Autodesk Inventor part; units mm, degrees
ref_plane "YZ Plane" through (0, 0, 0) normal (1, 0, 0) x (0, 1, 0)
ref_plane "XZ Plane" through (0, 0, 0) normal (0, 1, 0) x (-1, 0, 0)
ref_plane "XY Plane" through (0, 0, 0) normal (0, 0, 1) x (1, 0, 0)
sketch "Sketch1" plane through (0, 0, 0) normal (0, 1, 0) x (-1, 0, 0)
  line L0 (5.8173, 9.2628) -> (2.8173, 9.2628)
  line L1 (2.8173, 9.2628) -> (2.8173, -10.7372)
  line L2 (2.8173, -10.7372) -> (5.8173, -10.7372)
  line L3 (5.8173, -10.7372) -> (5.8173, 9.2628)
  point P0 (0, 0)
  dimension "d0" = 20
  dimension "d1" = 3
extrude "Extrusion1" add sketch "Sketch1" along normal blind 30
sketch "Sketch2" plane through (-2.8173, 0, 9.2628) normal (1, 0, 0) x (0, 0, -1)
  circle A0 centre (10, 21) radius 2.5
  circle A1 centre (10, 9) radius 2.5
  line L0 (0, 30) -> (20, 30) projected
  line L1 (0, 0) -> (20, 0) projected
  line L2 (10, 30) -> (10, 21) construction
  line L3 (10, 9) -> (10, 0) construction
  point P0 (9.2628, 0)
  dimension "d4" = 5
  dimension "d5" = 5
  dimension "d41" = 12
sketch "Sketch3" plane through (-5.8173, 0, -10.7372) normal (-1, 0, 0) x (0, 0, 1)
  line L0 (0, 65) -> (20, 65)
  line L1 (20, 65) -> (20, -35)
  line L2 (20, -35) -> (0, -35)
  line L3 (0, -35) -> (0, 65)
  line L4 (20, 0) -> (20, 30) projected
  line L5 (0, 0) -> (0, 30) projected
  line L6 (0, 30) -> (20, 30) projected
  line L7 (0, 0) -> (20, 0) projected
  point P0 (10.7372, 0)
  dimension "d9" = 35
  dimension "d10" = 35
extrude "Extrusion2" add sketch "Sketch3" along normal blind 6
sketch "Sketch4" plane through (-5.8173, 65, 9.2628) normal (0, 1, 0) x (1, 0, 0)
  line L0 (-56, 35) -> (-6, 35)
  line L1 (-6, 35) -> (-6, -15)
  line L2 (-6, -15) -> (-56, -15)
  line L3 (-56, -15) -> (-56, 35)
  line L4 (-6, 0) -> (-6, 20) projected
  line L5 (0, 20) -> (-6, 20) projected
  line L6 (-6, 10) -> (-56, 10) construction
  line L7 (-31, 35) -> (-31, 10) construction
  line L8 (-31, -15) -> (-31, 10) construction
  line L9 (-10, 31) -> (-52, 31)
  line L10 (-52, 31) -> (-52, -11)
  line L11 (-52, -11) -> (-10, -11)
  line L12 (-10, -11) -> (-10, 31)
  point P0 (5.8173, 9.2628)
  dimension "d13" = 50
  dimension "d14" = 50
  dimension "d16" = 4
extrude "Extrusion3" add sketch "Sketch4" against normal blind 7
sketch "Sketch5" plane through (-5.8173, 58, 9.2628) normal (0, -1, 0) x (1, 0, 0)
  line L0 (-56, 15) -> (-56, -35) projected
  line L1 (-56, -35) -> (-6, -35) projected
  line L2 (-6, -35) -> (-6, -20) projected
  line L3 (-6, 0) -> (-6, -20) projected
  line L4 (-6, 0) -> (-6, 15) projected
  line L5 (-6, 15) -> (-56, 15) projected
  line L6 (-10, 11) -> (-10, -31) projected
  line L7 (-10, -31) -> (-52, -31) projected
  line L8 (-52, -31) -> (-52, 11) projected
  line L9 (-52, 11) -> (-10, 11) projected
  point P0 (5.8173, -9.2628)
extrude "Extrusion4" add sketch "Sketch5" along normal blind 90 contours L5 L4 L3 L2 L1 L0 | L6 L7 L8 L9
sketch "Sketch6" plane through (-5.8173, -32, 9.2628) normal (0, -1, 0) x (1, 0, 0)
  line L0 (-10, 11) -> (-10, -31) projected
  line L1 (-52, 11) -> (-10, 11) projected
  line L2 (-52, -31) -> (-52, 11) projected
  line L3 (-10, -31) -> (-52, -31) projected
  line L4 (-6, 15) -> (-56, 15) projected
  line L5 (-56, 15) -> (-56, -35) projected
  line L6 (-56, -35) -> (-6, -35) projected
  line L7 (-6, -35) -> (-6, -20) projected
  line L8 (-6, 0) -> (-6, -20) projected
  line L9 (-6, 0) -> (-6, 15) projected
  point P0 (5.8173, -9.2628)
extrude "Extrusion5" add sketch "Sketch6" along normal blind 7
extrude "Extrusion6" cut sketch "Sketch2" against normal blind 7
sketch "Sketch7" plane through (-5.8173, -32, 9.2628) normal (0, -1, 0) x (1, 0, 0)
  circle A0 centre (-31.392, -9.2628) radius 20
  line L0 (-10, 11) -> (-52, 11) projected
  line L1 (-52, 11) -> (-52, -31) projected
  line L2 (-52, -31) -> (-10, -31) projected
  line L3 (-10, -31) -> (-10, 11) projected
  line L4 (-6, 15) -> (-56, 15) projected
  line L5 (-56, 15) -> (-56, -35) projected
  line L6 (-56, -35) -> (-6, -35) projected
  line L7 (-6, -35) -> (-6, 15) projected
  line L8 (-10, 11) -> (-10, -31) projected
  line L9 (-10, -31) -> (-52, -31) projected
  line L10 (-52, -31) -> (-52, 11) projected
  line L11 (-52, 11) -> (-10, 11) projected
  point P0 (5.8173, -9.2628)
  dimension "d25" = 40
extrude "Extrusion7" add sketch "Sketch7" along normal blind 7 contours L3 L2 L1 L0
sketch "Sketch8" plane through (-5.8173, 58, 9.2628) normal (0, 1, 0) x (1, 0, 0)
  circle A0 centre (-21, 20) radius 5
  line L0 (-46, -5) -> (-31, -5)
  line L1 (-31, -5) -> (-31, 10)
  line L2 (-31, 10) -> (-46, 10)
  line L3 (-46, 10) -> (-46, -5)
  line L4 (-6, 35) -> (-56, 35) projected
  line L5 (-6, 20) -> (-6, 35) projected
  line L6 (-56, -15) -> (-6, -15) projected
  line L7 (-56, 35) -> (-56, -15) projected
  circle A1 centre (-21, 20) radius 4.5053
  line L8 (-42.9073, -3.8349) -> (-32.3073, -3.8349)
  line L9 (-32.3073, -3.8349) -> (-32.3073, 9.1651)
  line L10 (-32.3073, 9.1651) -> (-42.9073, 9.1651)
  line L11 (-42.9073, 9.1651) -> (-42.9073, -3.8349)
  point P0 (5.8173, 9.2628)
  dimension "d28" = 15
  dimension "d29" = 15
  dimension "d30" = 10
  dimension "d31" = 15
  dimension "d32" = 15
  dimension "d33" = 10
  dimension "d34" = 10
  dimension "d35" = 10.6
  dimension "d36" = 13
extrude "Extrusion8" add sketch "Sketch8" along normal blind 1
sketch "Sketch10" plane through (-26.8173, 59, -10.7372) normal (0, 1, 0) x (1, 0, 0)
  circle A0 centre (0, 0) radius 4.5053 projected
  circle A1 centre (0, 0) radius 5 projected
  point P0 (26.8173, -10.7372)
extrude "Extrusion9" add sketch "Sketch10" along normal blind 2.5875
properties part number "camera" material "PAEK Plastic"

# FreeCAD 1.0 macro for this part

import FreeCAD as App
import Part
import Sketcher
from FreeCAD import Vector

doc = App.newDocument("Part")
body = doc.addObject("PartDesign::Body", "Body")

# Sketch on XZ plane
sketch1 = body.newObject("Sketcher::SketchObject", "Sketch")
sketch1.AttachmentSupport = (doc.getObject("XZ_Plane"), [""])
sketch1.MapMode = "FlatFace"
sketch1.addGeometry([
    Part.LineSegment(Vector(-5.8, -10.7, 0), Vector(-5.8, 9.3, 0)),
    Part.LineSegment(Vector(-5.8, 9.3, 0), Vector(-2.8, 9.3, 0)),
    Part.LineSegment(Vector(-2.8, 9.3, 0), Vector(-2.8, -10.7, 0)),
    Part.LineSegment(Vector(-2.8, -10.7, 0), Vector(-5.8, -10.7, 0)),
], False)
sketch1.addConstraint([
    Sketcher.Constraint("Coincident", 0, 2, 1, 1),
    Sketcher.Constraint("Coincident", 1, 2, 2, 1),
    Sketcher.Constraint("Coincident", 2, 2, 3, 1),
    Sketcher.Constraint("Coincident", 3, 2, 0, 1),
    Sketcher.Constraint("Vertical", 0),
    Sketcher.Constraint("Horizontal", 1),
    Sketcher.Constraint("Vertical", 2),
    Sketcher.Constraint("Horizontal", 3),
    Sketcher.Constraint("DistanceX", 1, 1, 1, 2, 3.0),
    Sketcher.Constraint("DistanceY", 0, 1, 0, 2, 20.0),
    Sketcher.Constraint("DistanceX", 0, 2, -1, 1, 5.8173),
    Sketcher.Constraint("DistanceY", -1, 1, 0, 2, 9.2628),
])
pad1 = body.newObject("PartDesign::Pad", "Pad")
pad1.Profile = sketch1
pad1.Length = 30
pad1.Reversed = True

# Sketch on YZ plane
sketch2 = body.newObject("Sketcher::SketchObject", "Sketch001")
sketch2.AttachmentSupport = (doc.getObject("YZ_Plane"), [""])
sketch2.MapMode = "FlatFace"
sketch2.AttachmentOffset = App.Placement(Vector(0, 0, -5.8173), App.Rotation())
sketch2.addGeometry([
    Part.LineSegment(Vector(65, 9, 0), Vector(65, -11, 0)),
    Part.LineSegment(Vector(65, -11, 0), Vector(-35, -11, 0)),
    Part.LineSegment(Vector(-35, -11, 0), Vector(-35, 9, 0)),
    Part.LineSegment(Vector(-35, 9, 0), Vector(65, 9, 0)),
], False)
sketch2.addConstraint([
    Sketcher.Constraint("Coincident", 0, 2, 1, 1),
    Sketcher.Constraint("Coincident", 1, 2, 2, 1),
    Sketcher.Constraint("Coincident", 2, 2, 3, 1),
    Sketcher.Constraint("Coincident", 3, 2, 0, 1),
    Sketcher.Constraint("Vertical", 0),
    Sketcher.Constraint("Horizontal", 1),
    Sketcher.Constraint("Vertical", 2),
    Sketcher.Constraint("Horizontal", 3),
    Sketcher.Constraint("DistanceX", 1, 2, -1, 1, 35.0),
    Sketcher.Constraint("DistanceX", 1, 2, 1, 1, 100.0),
    Sketcher.Constraint("DistanceY", 0, 2, 0, 1, 20.0),
    Sketcher.Constraint("DistanceY", 0, 2, -1, 1, 10.7372),
])
pad2 = body.newObject("PartDesign::Pad", "Pad001")
pad2.Profile = sketch2
pad2.Length = 6
pad2.Reversed = True

# Sketch on XZ plane
sketch3 = body.newObject("Sketcher::SketchObject", "Sketch002")
sketch3.AttachmentSupport = (doc.getObject("XZ_Plane"), [""])
sketch3.MapMode = "FlatFace"
sketch3.AttachmentOffset = App.Placement(Vector(0, 0, -65), App.Rotation())
sketch3.addGeometry([
    Part.LineSegment(Vector(-12, -26, 0), Vector(-62, -26, 0)),  # 0
    Part.LineSegment(Vector(-62, -26, 0), Vector(-62, 24, 0)),  # 1
    Part.LineSegment(Vector(-62, 24, 0), Vector(-12, 24, 0)),  # 2
    Part.LineSegment(Vector(-12, 24, 0), Vector(-12, -26, 0)),  # 3
    Part.LineSegment(Vector(-58, -22, 0), Vector(-16, -22, 0)),  # 4
    Part.LineSegment(Vector(-16, -22, 0), Vector(-16, 20, 0)),  # 5
    Part.LineSegment(Vector(-16, 20, 0), Vector(-58, 20, 0)),  # 6
    Part.LineSegment(Vector(-58, 20, 0), Vector(-58, -22, 0)),  # 7
], False)
sketch3.addConstraint([
    Sketcher.Constraint("Coincident", 0, 2, 1, 1),
    Sketcher.Constraint("Coincident", 1, 2, 2, 1),
    Sketcher.Constraint("Coincident", 2, 2, 3, 1),
    Sketcher.Constraint("Coincident", 3, 2, 0, 1),
    Sketcher.Constraint("Coincident", 4, 2, 5, 1),
    Sketcher.Constraint("Coincident", 5, 2, 6, 1),
    Sketcher.Constraint("Coincident", 6, 2, 7, 1),
    Sketcher.Constraint("Coincident", 7, 2, 4, 1),
    Sketcher.Constraint("Horizontal", 0),
    Sketcher.Constraint("Vertical", 1),
    Sketcher.Constraint("Horizontal", 2),
    Sketcher.Constraint("Vertical", 3),
    Sketcher.Constraint("Horizontal", 4),
    Sketcher.Constraint("Vertical", 5),
    Sketcher.Constraint("Horizontal", 6),
    Sketcher.Constraint("Vertical", 7),
    Sketcher.Constraint("Equal", 2, 1),
    Sketcher.Constraint("Equal", 6, 5),
    Sketcher.Constraint("DistanceX", 0, 2, 0, 1, 50.0),
    Sketcher.Constraint("DistanceX", 4, 2, 3, 2, 4.0),
    Sketcher.Constraint("DistanceY", 3, 2, 4, 2, 4.0),
    Sketcher.Constraint("DistanceY", 5, 2, 2, 2, 4.0),
    Sketcher.Constraint("DistanceX", 0, 2, -1, 1, 61.8173),
    Sketcher.Constraint("DistanceY", 0, 2, -1, 1, 25.7372),
])
pad3 = body.newObject("PartDesign::Pad", "Pad002")
pad3.Profile = sketch3
pad3.Length = 7

# Sketch on XZ plane
sketch4 = body.newObject("Sketcher::SketchObject", "Sketch003")
sketch4.AttachmentSupport = (doc.getObject("XZ_Plane"), [""])
sketch4.MapMode = "FlatFace"
sketch4.AttachmentOffset = App.Placement(Vector(0, 0, -58), App.Rotation())
sketch4.addGeometry([
    Part.LineSegment(Vector(-12, 24, 0), Vector(-62, 24, 0)),
    Part.LineSegment(Vector(-62, 24, 0), Vector(-62, -26, 0)),
    Part.LineSegment(Vector(-62, -26, 0), Vector(-12, -26, 0)),
    Part.LineSegment(Vector(-12, -26, 0), Vector(-12, 24, 0)),
], False)
sketch4.addConstraint([
    Sketcher.Constraint("Coincident", 0, 2, 1, 1),
    Sketcher.Constraint("Coincident", 1, 2, 2, 1),
    Sketcher.Constraint("Coincident", 2, 2, 3, 1),
    Sketcher.Constraint("Coincident", 3, 2, 0, 1),
    Sketcher.Constraint("Horizontal", 0),
    Sketcher.Constraint("Vertical", 1),
    Sketcher.Constraint("Horizontal", 2),
    Sketcher.Constraint("Vertical", 3),
    Sketcher.Constraint("Equal", 2, 1),
    Sketcher.Constraint("DistanceX", 0, 2, 0, 1, 50.0),
    Sketcher.Constraint("DistanceX", 0, 2, -1, 1, 61.8173),
    Sketcher.Constraint("DistanceY", -1, 1, 0, 2, 24.2628),
])
pad4 = body.newObject("PartDesign::Pad", "Pad003")
pad4.Profile = sketch4
pad4.Length = 90

# Sketch on XZ plane
sketch5 = body.newObject("Sketcher::SketchObject", "Sketch004")
sketch5.AttachmentSupport = (doc.getObject("XZ_Plane"), [""])
sketch5.MapMode = "FlatFace"
sketch5.AttachmentOffset = App.Placement(Vector(0, 0, 32), App.Rotation())
sketch5.addGeometry([
    Part.LineSegment(Vector(-12, -26, 0), Vector(-12, 24, 0)),  # 0
    Part.LineSegment(Vector(-12, 24, 0), Vector(-62, 24, 0)),  # 1
    Part.LineSegment(Vector(-62, 24, 0), Vector(-62, -26, 0)),  # 2
    Part.LineSegment(Vector(-62, -26, 0), Vector(-12, -26, 0)),  # 3
    Part.LineSegment(Vector(-58, 20, 0), Vector(-16, 20, 0)),  # 4
    Part.LineSegment(Vector(-16, 20, 0), Vector(-16, -22, 0)),  # 5
    Part.LineSegment(Vector(-16, -22, 0), Vector(-58, -22, 0)),  # 6
    Part.LineSegment(Vector(-58, -22, 0), Vector(-58, 20, 0)),  # 7
], False)
sketch5.addConstraint([
    Sketcher.Constraint("Coincident", 0, 2, 1, 1),
    Sketcher.Constraint("Coincident", 1, 2, 2, 1),
    Sketcher.Constraint("Coincident", 2, 2, 3, 1),
    Sketcher.Constraint("Coincident", 3, 2, 0, 1),
    Sketcher.Constraint("Coincident", 4, 2, 5, 1),
    Sketcher.Constraint("Coincident", 5, 2, 6, 1),
    Sketcher.Constraint("Coincident", 6, 2, 7, 1),
    Sketcher.Constraint("Coincident", 7, 2, 4, 1),
    Sketcher.Constraint("Vertical", 0),
    Sketcher.Constraint("Horizontal", 1),
    Sketcher.Constraint("Vertical", 2),
    Sketcher.Constraint("Horizontal", 3),
    Sketcher.Constraint("Horizontal", 4),
    Sketcher.Constraint("Vertical", 5),
    Sketcher.Constraint("Horizontal", 6),
    Sketcher.Constraint("Vertical", 7),
    Sketcher.Constraint("Equal", 3, 0),
    Sketcher.Constraint("Equal", 6, 5),
    Sketcher.Constraint("DistanceX", 1, 2, 1, 1, 50.0),
    Sketcher.Constraint("DistanceX", 4, 1, 4, 2, 42.0),
    Sketcher.Constraint("DistanceX", 4, 2, 0, 2, 4.0),
    Sketcher.Constraint("DistanceY", 4, 2, 0, 2, 4.0),
    Sketcher.Constraint("DistanceX", 0, 2, -1, 1, 11.8173),
    Sketcher.Constraint("DistanceY", -1, 1, 0, 2, 24.2628),
])
pad5 = body.newObject("PartDesign::Pad", "Pad004")
pad5.Profile = sketch5
pad5.Length = 7

# Sketch on YZ plane
sketch6 = body.newObject("Sketcher::SketchObject", "Sketch005")
sketch6.AttachmentSupport = (doc.getObject("YZ_Plane"), [""])
sketch6.MapMode = "FlatFace"
sketch6.AttachmentOffset = App.Placement(Vector(0, 0, -2.8173), App.Rotation())
sketch6.addGeometry([
    Part.Circle(Vector(21, -0.7, 0), Vector(0, 0, 1), 2.5),
    Part.Circle(Vector(9, -0.7, 0), Vector(0, 0, 1), 2.5),
], False)
sketch6.addConstraint([
    Sketcher.Constraint("Equal", 0, 1),
    Sketcher.Constraint("Horizontal", 0, 3, 1, 3),
    Sketcher.Constraint("Diameter", 0, 5.0),
    Sketcher.Constraint("DistanceX", 1, 3, 0, 3, 12.0),
    Sketcher.Constraint("DistanceX", -1, 1, 0, 3, 21.0),
    Sketcher.Constraint("DistanceY", 0, 3, -1, 1, 0.7372),
])
pocket1 = body.newObject("PartDesign::Pocket", "Pocket")
pocket1.Profile = sketch6
pocket1.Length = 7

# Sketch on XZ plane
sketch7 = body.newObject("Sketcher::SketchObject", "Sketch006")
sketch7.AttachmentSupport = (doc.getObject("XZ_Plane"), [""])
sketch7.MapMode = "FlatFace"
sketch7.AttachmentOffset = App.Placement(Vector(0, 0, 32), App.Rotation())
sketch7.addGeometry([
    Part.LineSegment(Vector(-16, -22, 0), Vector(-16, 20, 0)),  # 0
    Part.LineSegment(Vector(-16, 20, 0), Vector(-58, 20, 0)),  # 1
    Part.LineSegment(Vector(-58, 20, 0), Vector(-58, -22, 0)),  # 2
    Part.LineSegment(Vector(-58, -22, 0), Vector(-16, -22, 0)),  # 3
    Part.Circle(Vector(-37, 0, 0), Vector(0, 0, 1), 20),  # 4
], False)
sketch7.addConstraint([
    Sketcher.Constraint("Coincident", 0, 2, 1, 1),
    Sketcher.Constraint("Coincident", 1, 2, 2, 1),
    Sketcher.Constraint("Coincident", 2, 2, 3, 1),
    Sketcher.Constraint("Coincident", 3, 2, 0, 1),
    Sketcher.Constraint("Vertical", 0),
    Sketcher.Constraint("Horizontal", 1),
    Sketcher.Constraint("Vertical", 2),
    Sketcher.Constraint("Horizontal", 3),
    Sketcher.Constraint("PointOnObject", 4, 3, -1),
    Sketcher.Constraint("Equal", 3, 0),
    Sketcher.Constraint("Diameter", 4, 40.0),
    Sketcher.Constraint("DistanceX", 1, 2, 1, 1, 42.0),
    Sketcher.Constraint("DistanceX", 4, 3, 0, 2, 21.392),
    Sketcher.Constraint("DistanceX", 4, 3, -1, 1, 37.2093),
    Sketcher.Constraint("DistanceY", -1, 1, 0, 2, 20.2628),
])
pad6 = body.newObject("PartDesign::Pad", "Pad005")
pad6.Profile = sketch7
pad6.Length = 7

# Sketch on XZ plane
sketch8 = body.newObject("Sketcher::SketchObject", "Sketch007")
sketch8.AttachmentSupport = (doc.getObject("XZ_Plane"), [""])
sketch8.MapMode = "FlatFace"
sketch8.AttachmentOffset = App.Placement(Vector(0, 0, -58), App.Rotation())
sketch8.addGeometry([
    Part.Circle(Vector(-26.8, -10.7, 0), Vector(0, 0, 1), 5),  # 0
    Part.Circle(Vector(-26.8, -10.7, 0), Vector(0, 0, 1), 4.5),  # 1
    Part.LineSegment(Vector(-51.8, -0.7, 0), Vector(-51.8, 14.3, 0)),  # 2
    Part.LineSegment(Vector(-51.8, 14.3, 0), Vector(-36.8, 14.3, 0)),  # 3
    Part.LineSegment(Vector(-36.8, 14.3, 0), Vector(-36.8, -0.7, 0)),  # 4
    Part.LineSegment(Vector(-36.8, -0.7, 0), Vector(-51.8, -0.7, 0)),  # 5
    Part.LineSegment(Vector(-38.1, 13.1, 0), Vector(-48.7, 13.1, 0)),  # 6
    Part.LineSegment(Vector(-48.7, 13.1, 0), Vector(-48.7, 0.1, 0)),  # 7
    Part.LineSegment(Vector(-48.7, 0.1, 0), Vector(-38.1, 0.1, 0)),  # 8
    Part.LineSegment(Vector(-38.1, 0.1, 0), Vector(-38.1, 13.1, 0)),  # 9
], False)
sketch8.addConstraint([
    Sketcher.Constraint("Coincident", 2, 2, 3, 1),
    Sketcher.Constraint("Coincident", 3, 2, 4, 1),
    Sketcher.Constraint("Coincident", 4, 2, 5, 1),
    Sketcher.Constraint("Coincident", 5, 2, 2, 1),
    Sketcher.Constraint("Coincident", 6, 2, 7, 1),
    Sketcher.Constraint("Coincident", 7, 2, 8, 1),
    Sketcher.Constraint("Coincident", 8, 2, 9, 1),
    Sketcher.Constraint("Coincident", 9, 2, 6, 1),
    Sketcher.Constraint("Vertical", 2),
    Sketcher.Constraint("Horizontal", 3),
    Sketcher.Constraint("Vertical", 4),
    Sketcher.Constraint("Horizontal", 5),
    Sketcher.Constraint("Horizontal", 6),
    Sketcher.Constraint("Vertical", 7),
    Sketcher.Constraint("Horizontal", 8),
    Sketcher.Constraint("Vertical", 9),
    Sketcher.Constraint("Coincident", 1, 3, 0, 3),
    Sketcher.Constraint("Equal", 5, 2),
    Sketcher.Constraint("Diameter", 0, 10.0),
    Sketcher.Constraint("DistanceX", 3, 1, 3, 2, 15.0),
    Sketcher.Constraint("DistanceY", 7, 2, 7, 1, 13.0),
    Sketcher.Constraint("DistanceX", 6, 2, 6, 1, 10.6),
    Sketcher.Constraint("DistanceX", 3, 2, 0, 3, 10.0),
    Sketcher.Constraint("DistanceY", 0, 3, 4, 2, 10.0),
    Sketcher.Constraint("Diameter", 1, 9.0106),
    Sketcher.Constraint("DistanceY", 6, 2, 2, 2, 1.165),
    Sketcher.Constraint("DistanceX", 0, 3, -1, 1, 26.8173),
    Sketcher.Constraint("DistanceY", 0, 3, -1, 1, 10.7372),
    Sketcher.Constraint("DistanceX", 6, 2, -1, 1, 48.7246),
])
pad7 = body.newObject("PartDesign::Pad", "Pad006")
pad7.Profile = sketch8
pad7.Length = 1
pad7.Reversed = True

# Sketch on XZ plane
sketch9 = body.newObject("Sketcher::SketchObject", "Sketch008")
sketch9.AttachmentSupport = (doc.getObject("XZ_Plane"), [""])
sketch9.MapMode = "FlatFace"
sketch9.AttachmentOffset = App.Placement(Vector(0, 0, -59), App.Rotation())
sketch9.addGeometry([
    Part.Circle(Vector(-26.8, -10.7, 0), Vector(0, 0, 1), 5),
    Part.Circle(Vector(-26.8, -10.7, 0), Vector(0, 0, 1), 4.5),
], False)
sketch9.addConstraint([
    Sketcher.Constraint("Coincident", 1, 3, 0, 3),
    Sketcher.Constraint("Diameter", 0, 10.0),
    Sketcher.Constraint("Diameter", 1, 9.0106),
    Sketcher.Constraint("DistanceX", 0, 3, -1, 1, 26.8173),
    Sketcher.Constraint("DistanceY", 0, 3, -1, 1, 10.7372),
])
pad8 = body.newObject("PartDesign::Pad", "Pad007")
pad8.Profile = sketch9
pad8.Length = 2.5875
pad8.Reversed = True

doc.recompute()
